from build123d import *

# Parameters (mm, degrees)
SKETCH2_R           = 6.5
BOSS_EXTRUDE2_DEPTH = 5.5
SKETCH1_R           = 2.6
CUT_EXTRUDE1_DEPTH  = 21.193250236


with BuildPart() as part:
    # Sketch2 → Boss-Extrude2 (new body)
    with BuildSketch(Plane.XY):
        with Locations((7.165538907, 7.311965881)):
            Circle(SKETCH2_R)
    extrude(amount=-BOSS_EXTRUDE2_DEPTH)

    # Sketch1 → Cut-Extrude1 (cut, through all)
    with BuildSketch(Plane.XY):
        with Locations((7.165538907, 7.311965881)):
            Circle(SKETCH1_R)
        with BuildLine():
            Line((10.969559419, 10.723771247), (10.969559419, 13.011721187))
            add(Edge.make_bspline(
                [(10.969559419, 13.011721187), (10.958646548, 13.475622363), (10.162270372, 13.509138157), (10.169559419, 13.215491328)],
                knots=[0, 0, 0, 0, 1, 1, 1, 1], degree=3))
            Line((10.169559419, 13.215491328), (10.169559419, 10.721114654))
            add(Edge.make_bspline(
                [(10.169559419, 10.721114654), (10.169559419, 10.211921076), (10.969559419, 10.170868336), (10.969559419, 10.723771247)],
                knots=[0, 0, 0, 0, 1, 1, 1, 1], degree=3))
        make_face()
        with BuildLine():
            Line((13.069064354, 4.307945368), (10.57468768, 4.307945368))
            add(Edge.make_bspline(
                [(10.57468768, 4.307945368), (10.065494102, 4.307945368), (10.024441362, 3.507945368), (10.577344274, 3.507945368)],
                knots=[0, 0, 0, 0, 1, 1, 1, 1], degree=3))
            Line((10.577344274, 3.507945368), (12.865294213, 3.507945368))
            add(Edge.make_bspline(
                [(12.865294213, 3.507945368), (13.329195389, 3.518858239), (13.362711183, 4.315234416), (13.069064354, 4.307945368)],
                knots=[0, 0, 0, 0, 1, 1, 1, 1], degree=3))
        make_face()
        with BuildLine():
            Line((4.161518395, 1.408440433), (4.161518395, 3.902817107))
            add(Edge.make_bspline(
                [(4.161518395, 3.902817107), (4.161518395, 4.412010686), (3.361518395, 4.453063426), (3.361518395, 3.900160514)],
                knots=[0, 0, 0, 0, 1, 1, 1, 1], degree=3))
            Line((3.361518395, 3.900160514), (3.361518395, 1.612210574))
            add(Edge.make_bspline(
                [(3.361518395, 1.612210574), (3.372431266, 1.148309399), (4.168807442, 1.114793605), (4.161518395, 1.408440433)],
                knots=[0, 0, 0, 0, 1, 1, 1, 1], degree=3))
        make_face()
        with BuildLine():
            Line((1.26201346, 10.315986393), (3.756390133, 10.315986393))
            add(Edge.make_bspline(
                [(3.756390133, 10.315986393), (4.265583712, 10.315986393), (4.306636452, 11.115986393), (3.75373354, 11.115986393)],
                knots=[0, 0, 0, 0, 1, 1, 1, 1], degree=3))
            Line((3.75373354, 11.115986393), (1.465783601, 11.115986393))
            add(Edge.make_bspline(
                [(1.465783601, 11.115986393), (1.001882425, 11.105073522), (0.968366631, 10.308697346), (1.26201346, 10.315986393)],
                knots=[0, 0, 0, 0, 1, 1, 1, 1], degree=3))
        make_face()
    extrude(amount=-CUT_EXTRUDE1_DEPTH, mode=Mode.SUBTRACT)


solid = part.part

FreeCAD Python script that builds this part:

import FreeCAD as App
import Part
import Sketcher
from FreeCAD import Vector
Q = App.Units.Quantity

doc = App.newDocument("Part")
params = doc.addObject("Spreadsheet::Sheet", "Params")
for row, (alias, value) in enumerate([
    ("sketch1_diameter", "13 mm"),
    ("pad1_length", "5.5 mm"),
    ("sketch2_diameter", "5.2 mm"),
], start=1):
    params.set(f"A{row}", alias)
    params.set(f"B{row}", "=" + value)
    params.setAlias(f"B{row}", alias)

body = doc.addObject("PartDesign::Body", "Body")

sketch1 = body.newObject("Sketcher::SketchObject", "Sketch")
sketch1.AttachmentSupport = (doc.getObject("XY_Plane"), [""])
sketch1.MapMode = "FlatFace"
sketch1.addGeometry(Part.Circle(Vector(7, 7, 0), Vector(0, 0, 1), 6), False)
sketch1.addConstraint([
    Sketcher.Constraint("Diameter", 0, Q("13 mm")),
    Sketcher.Constraint("DistanceX", -1, 1, 0, 3, Q("7.165539 mm")),
    Sketcher.Constraint("DistanceY", -1, 1, 0, 3, Q("7.311966 mm")),
])
sketch1.setExpression("Constraints[0]", "Params.sketch1_diameter")
pad1 = body.newObject("PartDesign::Pad", "Pad")
pad1.Profile = sketch1
pad1.setExpression("Length", "Params.pad1_length")
pad1.Reversed = True

sketch2 = body.newObject("Sketcher::SketchObject", "Sketch001")
sketch2.AttachmentSupport = (doc.getObject("XY_Plane"), [""])
sketch2.MapMode = "FlatFace"
sketch2.addGeometry([
    Part.Circle(Vector(7.165539, 7.311966, 0), Vector(0, 0, 1), 2.6),
    Part.LineSegment(Vector(10.969559, 10.723771, 0), Vector(10.969559, 13.011721, 0)),
    Part.BSplineCurve([Vector(10.969559, 13.011721, 0), Vector(10.958647, 13.475622, 0), Vector(10.16227, 13.509138, 0), Vector(10.169559, 13.215491, 0)], [4, 4], [0, 1], False, 3, [1, 1, 1, 1], False),
    Part.LineSegment(Vector(10.169559, 13.215491, 0), Vector(10.169559, 10.721115, 0)),
    Part.BSplineCurve([Vector(10.169559, 10.721115, 0), Vector(10.169559, 10.211921, 0), Vector(10.969559, 10.170868, 0), Vector(10.969559, 10.723771, 0)], [4, 4], [0, 1], False, 3, [1, 1, 1, 1], False),
    Part.LineSegment(Vector(13.069064, 4.307945, 0), Vector(10.574688, 4.307945, 0)),
    Part.BSplineCurve([Vector(10.574688, 4.307945, 0), Vector(10.065494, 4.307945, 0), Vector(10.024441, 3.507945, 0), Vector(10.577344, 3.507945, 0)], [4, 4], [0, 1], False, 3, [1, 1, 1, 1], False),
    Part.LineSegment(Vector(10.577344, 3.507945, 0), Vector(12.865294, 3.507945, 0)),
    Part.BSplineCurve([Vector(12.865294, 3.507945, 0), Vector(13.329195, 3.518858, 0), Vector(13.362711, 4.315234, 0), Vector(13.069064, 4.307945, 0)], [4, 4], [0, 1], False, 3, [1, 1, 1, 1], False),
    Part.LineSegment(Vector(4.161518, 1.40844, 0), Vector(4.161518, 3.902817, 0)),
    Part.BSplineCurve([Vector(4.161518, 3.902817, 0), Vector(4.161518, 4.412011, 0), Vector(3.361518, 4.453063, 0), Vector(3.361518, 3.900161, 0)], [4, 4], [0, 1], False, 3, [1, 1, 1, 1], False),
    Part.LineSegment(Vector(3.361518, 3.900161, 0), Vector(3.361518, 1.612211, 0)),
    Part.BSplineCurve([Vector(3.361518, 1.612211, 0), Vector(3.372431, 1.148309, 0), Vector(4.168807, 1.114794, 0), Vector(4.161518, 1.40844, 0)], [4, 4], [0, 1], False, 3, [1, 1, 1, 1], False),
    Part.LineSegment(Vector(1.262013, 10.315986, 0), Vector(3.75639, 10.315986, 0)),
    Part.BSplineCurve([Vector(3.75639, 10.315986, 0), Vector(4.265584, 10.315986, 0), Vector(4.306636, 11.115986, 0), Vector(3.753734, 11.115986, 0)], [4, 4], [0, 1], False, 3, [1, 1, 1, 1], False),
    Part.LineSegment(Vector(3.753734, 11.115986, 0), Vector(1.465784, 11.115986, 0)),
    Part.BSplineCurve([Vector(1.465784, 11.115986, 0), Vector(1.001882, 11.105074, 0), Vector(0.968367, 10.308697, 0), Vector(1.262013, 10.315986, 0)], [4, 4], [0, 1], False, 3, [1, 1, 1, 1], False),
], False)
sketch2.addConstraint([
    Sketcher.Constraint("Block", 2),
    Sketcher.Constraint("Block", 4),
    Sketcher.Constraint("Block", 6),
    Sketcher.Constraint("Block", 8),
    Sketcher.Constraint("Block", 10),
    Sketcher.Constraint("Block", 12),
    Sketcher.Constraint("Block", 14),
    Sketcher.Constraint("Block", 16),
    Sketcher.Constraint("Coincident", 1, 2, 2, 1),
    Sketcher.Constraint("Coincident", 2, 2, 3, 1),
    Sketcher.Constraint("Coincident", 3, 2, 4, 1),
    Sketcher.Constraint("Coincident", 4, 2, 1, 1),
    Sketcher.Constraint("Coincident", 5, 2, 6, 1),
    Sketcher.Constraint("Coincident", 6, 2, 7, 1),
    Sketcher.Constraint("Coincident", 7, 2, 8, 1),
    Sketcher.Constraint("Coincident", 8, 2, 5, 1),
    Sketcher.Constraint("Coincident", 9, 2, 10, 1),
    Sketcher.Constraint("Coincident", 10, 2, 11, 1),
    Sketcher.Constraint("Coincident", 11, 2, 12, 1),
    Sketcher.Constraint("Coincident", 12, 2, 9, 1),
    Sketcher.Constraint("Coincident", 13, 2, 14, 1),
    Sketcher.Constraint("Coincident", 14, 2, 15, 1),
    Sketcher.Constraint("Coincident", 15, 2, 16, 1),
    Sketcher.Constraint("Coincident", 16, 2, 13, 1),
    Sketcher.Constraint("Diameter", 0, Q("5.2 mm")),
    Sketcher.Constraint("DistanceX", -1, 1, 0, 3, Q("7.165539 mm")),
    Sketcher.Constraint("DistanceY", 0, 3, 3, 2, Q("3.409149 mm")),
])
sketch2.setExpression("Constraints[24]", "Params.sketch2_diameter")
pocket1 = body.newObject("PartDesign::Pocket", "Pocket")
pocket1.Profile = sketch2
pocket1.Type = "ThroughAll"

doc.recompute()
